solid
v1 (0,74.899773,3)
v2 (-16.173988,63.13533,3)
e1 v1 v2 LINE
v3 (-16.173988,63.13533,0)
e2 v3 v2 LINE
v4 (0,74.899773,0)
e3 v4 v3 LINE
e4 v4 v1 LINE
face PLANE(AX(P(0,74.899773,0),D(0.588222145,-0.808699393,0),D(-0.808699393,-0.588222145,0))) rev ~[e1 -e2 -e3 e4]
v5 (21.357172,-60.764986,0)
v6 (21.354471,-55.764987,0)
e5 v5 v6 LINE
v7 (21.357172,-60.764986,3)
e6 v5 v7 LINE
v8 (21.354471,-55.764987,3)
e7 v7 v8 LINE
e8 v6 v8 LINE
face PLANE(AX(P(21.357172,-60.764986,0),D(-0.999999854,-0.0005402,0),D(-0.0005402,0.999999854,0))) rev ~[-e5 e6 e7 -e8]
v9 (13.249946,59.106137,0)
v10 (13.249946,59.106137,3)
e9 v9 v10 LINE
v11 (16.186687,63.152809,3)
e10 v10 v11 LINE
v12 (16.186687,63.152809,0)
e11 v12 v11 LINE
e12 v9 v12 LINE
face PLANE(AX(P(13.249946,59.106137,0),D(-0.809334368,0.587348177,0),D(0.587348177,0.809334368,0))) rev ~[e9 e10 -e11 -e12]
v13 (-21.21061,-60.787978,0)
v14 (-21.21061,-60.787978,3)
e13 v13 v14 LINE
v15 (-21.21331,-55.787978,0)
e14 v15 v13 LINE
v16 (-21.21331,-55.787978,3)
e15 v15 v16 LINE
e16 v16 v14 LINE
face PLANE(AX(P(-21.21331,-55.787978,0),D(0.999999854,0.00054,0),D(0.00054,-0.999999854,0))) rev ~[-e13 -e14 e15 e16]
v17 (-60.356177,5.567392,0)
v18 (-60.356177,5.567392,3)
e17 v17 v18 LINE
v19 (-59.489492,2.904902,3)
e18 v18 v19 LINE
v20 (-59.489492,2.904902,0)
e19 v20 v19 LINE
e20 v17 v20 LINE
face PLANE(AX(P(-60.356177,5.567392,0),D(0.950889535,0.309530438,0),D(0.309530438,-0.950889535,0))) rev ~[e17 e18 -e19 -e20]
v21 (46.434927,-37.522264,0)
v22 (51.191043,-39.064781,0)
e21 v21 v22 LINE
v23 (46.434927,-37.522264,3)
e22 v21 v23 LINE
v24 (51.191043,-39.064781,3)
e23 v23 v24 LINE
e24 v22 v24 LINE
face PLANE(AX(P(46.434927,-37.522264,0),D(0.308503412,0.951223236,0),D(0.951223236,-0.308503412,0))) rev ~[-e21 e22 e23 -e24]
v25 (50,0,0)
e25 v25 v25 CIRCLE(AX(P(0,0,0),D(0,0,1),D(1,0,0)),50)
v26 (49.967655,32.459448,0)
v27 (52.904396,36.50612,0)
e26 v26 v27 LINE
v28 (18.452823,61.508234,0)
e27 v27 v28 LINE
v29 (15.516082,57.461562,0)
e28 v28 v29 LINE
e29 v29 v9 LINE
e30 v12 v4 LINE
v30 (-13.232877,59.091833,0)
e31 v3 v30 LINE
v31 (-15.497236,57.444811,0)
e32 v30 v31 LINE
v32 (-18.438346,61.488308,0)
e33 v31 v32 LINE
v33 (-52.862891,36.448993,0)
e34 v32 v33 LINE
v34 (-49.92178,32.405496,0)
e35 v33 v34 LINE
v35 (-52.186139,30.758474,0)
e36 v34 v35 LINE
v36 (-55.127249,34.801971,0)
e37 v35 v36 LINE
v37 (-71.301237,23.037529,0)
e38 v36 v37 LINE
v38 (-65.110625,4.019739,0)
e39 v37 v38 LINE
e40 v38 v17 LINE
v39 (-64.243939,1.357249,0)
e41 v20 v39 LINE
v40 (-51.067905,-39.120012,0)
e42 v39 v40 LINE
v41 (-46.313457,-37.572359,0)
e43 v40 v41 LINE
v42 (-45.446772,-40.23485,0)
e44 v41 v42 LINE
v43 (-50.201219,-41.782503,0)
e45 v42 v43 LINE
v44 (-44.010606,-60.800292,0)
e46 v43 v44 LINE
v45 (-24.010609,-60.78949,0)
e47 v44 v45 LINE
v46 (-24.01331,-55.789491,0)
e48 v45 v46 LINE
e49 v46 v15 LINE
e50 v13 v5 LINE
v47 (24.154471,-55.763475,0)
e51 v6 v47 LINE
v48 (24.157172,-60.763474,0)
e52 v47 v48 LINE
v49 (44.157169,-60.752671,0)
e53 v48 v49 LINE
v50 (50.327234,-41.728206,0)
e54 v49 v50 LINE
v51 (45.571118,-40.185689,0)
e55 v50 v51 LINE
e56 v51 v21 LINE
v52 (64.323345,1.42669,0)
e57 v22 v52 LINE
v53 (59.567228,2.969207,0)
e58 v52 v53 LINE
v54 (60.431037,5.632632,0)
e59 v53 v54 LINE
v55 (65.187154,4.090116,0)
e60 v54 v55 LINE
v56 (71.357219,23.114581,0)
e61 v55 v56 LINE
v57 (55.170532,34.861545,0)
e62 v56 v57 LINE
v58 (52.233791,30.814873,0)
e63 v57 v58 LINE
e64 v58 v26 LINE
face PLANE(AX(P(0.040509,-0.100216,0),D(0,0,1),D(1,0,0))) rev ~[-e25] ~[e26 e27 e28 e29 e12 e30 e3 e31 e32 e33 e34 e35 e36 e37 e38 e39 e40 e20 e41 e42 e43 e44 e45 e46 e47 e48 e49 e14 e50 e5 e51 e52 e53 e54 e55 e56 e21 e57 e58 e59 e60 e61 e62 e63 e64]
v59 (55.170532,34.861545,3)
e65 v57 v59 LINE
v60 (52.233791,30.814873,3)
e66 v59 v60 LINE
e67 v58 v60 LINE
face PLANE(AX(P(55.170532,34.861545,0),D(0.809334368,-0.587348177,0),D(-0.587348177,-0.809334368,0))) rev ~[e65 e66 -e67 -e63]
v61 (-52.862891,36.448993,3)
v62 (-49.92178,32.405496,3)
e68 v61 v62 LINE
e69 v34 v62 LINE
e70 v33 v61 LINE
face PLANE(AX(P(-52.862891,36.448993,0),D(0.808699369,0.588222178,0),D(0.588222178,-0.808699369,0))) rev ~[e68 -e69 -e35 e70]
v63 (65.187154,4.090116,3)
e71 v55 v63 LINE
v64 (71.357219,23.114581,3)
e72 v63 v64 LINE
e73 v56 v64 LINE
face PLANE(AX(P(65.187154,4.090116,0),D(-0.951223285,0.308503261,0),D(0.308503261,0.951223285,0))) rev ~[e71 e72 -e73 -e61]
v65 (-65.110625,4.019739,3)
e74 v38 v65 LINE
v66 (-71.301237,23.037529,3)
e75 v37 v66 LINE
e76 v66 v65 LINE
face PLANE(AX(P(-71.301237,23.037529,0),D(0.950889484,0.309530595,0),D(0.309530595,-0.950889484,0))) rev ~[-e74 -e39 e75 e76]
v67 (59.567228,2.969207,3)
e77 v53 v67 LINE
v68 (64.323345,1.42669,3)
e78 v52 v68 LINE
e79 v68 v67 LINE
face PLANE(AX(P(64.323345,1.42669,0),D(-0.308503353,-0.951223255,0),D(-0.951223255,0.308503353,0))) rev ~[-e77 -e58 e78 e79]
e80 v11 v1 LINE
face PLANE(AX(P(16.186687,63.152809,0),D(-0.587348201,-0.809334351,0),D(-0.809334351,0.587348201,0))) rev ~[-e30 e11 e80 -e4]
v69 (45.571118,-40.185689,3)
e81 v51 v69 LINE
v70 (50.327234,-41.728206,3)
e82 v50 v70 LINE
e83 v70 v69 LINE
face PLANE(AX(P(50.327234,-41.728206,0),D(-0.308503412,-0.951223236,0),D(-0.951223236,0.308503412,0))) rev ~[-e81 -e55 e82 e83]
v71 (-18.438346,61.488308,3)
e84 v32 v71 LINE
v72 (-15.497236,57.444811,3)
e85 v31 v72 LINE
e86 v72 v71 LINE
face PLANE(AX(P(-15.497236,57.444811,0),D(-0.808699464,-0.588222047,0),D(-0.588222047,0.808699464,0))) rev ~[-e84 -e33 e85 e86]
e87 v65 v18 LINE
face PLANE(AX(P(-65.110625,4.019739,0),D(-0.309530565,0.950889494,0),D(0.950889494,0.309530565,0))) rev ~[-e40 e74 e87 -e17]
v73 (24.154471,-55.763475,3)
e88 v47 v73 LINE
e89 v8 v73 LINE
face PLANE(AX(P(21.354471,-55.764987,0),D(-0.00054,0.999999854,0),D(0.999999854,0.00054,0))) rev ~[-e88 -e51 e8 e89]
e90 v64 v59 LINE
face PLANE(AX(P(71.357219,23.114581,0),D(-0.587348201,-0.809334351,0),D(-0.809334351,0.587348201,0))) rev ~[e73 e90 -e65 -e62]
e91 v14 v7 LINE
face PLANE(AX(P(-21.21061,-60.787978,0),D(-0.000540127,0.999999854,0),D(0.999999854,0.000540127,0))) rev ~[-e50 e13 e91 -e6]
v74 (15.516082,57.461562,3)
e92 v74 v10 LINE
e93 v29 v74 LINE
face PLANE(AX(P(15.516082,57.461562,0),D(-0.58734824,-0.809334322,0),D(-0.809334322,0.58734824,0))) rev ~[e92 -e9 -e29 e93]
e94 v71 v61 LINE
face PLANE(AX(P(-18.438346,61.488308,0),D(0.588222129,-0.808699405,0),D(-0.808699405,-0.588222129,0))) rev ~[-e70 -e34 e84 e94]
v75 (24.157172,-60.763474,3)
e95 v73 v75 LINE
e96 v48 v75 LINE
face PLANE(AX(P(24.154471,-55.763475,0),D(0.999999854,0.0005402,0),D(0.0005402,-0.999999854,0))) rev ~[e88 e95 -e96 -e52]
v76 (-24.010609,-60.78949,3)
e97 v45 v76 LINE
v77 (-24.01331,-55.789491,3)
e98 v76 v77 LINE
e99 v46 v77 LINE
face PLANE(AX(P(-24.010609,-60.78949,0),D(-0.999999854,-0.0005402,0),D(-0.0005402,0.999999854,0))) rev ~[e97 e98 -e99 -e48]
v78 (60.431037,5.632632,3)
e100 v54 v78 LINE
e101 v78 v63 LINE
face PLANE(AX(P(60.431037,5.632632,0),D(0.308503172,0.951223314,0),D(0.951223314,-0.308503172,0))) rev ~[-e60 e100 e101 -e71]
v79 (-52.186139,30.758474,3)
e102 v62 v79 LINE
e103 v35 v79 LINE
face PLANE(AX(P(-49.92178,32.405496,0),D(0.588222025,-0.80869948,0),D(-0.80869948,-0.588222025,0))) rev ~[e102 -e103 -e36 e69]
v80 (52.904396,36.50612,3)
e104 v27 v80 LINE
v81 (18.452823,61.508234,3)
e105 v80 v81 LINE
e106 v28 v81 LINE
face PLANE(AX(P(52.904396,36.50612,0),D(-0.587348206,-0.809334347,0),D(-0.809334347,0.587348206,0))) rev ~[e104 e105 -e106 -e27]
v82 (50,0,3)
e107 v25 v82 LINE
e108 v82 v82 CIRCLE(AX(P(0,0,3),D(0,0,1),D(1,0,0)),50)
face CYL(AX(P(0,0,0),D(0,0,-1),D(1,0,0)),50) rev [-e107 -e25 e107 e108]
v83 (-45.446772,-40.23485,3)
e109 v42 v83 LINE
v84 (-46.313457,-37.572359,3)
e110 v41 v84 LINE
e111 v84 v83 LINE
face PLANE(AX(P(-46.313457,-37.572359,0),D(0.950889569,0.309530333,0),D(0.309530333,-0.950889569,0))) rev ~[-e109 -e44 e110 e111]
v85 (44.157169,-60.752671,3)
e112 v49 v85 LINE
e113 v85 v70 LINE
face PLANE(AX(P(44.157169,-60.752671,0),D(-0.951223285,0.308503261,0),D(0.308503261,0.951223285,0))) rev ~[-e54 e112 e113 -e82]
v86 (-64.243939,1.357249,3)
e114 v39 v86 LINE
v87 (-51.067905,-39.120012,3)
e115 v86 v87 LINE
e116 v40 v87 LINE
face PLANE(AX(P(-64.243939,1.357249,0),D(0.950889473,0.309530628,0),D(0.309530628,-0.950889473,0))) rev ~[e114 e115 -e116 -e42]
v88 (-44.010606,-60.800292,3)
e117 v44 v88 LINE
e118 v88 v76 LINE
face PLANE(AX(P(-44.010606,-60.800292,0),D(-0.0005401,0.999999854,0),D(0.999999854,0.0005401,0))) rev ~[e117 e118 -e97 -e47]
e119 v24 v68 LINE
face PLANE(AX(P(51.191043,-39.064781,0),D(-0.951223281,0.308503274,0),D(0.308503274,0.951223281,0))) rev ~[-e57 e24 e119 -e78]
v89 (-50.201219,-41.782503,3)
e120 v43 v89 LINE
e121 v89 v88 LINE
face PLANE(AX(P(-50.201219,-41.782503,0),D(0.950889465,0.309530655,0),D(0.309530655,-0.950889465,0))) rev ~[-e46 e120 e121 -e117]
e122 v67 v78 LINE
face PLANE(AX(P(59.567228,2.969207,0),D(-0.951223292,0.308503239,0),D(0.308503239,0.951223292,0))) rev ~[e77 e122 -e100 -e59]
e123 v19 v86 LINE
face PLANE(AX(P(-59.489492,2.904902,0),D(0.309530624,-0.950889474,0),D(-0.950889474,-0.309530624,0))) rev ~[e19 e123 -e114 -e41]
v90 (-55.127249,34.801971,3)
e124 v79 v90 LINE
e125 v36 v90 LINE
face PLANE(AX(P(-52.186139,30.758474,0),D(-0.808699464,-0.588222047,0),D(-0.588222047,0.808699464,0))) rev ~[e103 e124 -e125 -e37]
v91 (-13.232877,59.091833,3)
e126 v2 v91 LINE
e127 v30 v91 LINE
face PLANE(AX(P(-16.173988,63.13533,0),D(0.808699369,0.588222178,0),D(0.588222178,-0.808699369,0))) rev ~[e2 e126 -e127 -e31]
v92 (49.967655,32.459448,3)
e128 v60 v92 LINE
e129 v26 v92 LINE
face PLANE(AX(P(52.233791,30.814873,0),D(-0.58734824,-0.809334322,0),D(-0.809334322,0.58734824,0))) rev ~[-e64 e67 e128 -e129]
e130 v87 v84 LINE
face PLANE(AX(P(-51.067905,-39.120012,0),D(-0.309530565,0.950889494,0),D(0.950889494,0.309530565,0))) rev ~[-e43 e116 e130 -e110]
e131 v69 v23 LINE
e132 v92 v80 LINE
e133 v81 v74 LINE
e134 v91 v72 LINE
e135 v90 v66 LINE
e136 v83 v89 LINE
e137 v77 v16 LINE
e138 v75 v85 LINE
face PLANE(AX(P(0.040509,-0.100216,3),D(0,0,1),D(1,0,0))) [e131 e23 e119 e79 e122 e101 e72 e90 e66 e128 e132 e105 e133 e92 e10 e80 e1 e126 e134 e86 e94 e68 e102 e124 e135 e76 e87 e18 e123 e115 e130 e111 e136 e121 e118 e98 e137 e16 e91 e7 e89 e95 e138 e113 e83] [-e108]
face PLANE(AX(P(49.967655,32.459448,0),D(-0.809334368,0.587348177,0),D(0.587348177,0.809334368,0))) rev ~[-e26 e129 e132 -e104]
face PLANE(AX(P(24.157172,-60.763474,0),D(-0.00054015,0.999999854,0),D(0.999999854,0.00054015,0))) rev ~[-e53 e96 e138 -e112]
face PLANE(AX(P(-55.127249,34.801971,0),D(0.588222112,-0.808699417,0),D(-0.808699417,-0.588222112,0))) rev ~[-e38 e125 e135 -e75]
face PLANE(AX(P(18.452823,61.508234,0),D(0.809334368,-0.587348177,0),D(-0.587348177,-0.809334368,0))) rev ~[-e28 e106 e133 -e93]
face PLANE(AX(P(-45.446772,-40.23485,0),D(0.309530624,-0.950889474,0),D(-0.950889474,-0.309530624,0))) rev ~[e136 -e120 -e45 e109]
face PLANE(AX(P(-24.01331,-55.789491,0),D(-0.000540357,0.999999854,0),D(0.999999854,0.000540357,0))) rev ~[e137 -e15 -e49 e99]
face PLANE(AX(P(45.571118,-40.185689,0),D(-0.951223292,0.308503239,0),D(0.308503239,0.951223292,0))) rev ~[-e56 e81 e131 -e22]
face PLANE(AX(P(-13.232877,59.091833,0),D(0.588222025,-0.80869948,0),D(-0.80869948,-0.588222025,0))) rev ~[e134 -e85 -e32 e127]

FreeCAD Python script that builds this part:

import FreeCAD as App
import Part
import Sketcher
from FreeCAD import Vector


def add_polygon(sketch, points):
    """Adds a closed chain of lines whose ends are joined by coincident constraints."""
    first, n = sketch.GeometryCount, len(points)
    for a, b in zip(points, points[1:] + points[:1]):
        sketch.addGeometry(Part.LineSegment(App.Vector(*a, 0), App.Vector(*b, 0)), False)
    for i in range(n):
        sketch.addConstraint(Sketcher.Constraint("Coincident", first + i, 2, first + (i + 1) % n, 1))

doc = App.newDocument("Part")
body = doc.addObject("PartDesign::Body", "Body")

sketch1 = body.newObject("Sketcher::SketchObject", "Sketch")
sketch1.AttachmentSupport = (doc.getObject("XY_Plane"), [""])
sketch1.MapMode = "FlatFace"
add_polygon(sketch1, [(16.2, 63.2), (0, 74.9), (-16.2, 63.1), (-13.2, 59.1), (-15.5, 57.4), (-18.4, 61.5), (-52.9, 36.4), (-49.9, 32.4), (-52.2, 30.8), (-55.1, 34.8), (-71.3, 23), (-65.1, 4), (-60.4, 5.6), (-59.5, 2.9), (-64.2, 1.4), (-51.1, -39.1), (-46.3, -37.6), (-45.4, -40.2), (-50.2, -41.8), (-44, -60.8), (-24, -60.8), (-24, -55.8), (-21.2, -55.8), (-21.2, -60.8), (21.4, -60.8), (21.4, -55.8), (24.2, -55.8), (24.2, -60.8), (44.2, -60.8), (50.3, -41.7), (45.6, -40.2), (46.4, -37.5), (51.2, -39.1), (64.3, 1.4), (59.6, 3), (60.4, 5.6), (65.2, 4.1), (71.4, 23.1), (55.2, 34.9), (52.2, 30.8), (50, 32.5), (52.9, 36.5), (18.5, 61.5), (15.5, 57.5), (13.2, 59.1)])
sketch1.addGeometry(Part.Circle(Vector(0, 0, 0), Vector(0, 0, 1), 50), False)
sketch1.addConstraint([
    Sketcher.Constraint("Coincident", 45, 3, -1, 1),
    Sketcher.Constraint("PointOnObject", 0, 2, -2),
    Sketcher.Constraint("Perpendicular", 1, 2),
    Sketcher.Constraint("Perpendicular", 2, 3),
    Sketcher.Constraint("Perpendicular", 3, 4),
    Sketcher.Constraint("Perpendicular", 4, 5),
    Sketcher.Constraint("Perpendicular", 5, 6),
    Sketcher.Constraint("Perpendicular", 6, 7),
    Sketcher.Constraint("Perpendicular", 7, 8),
    Sketcher.Constraint("Perpendicular", 8, 9),
    Sketcher.Constraint("Perpendicular", 10, 11),
    Sketcher.Constraint("Perpendicular", 11, 12),
    Sketcher.Constraint("Perpendicular", 12, 13),
    Sketcher.Constraint("Perpendicular", 13, 14),
    Sketcher.Constraint("Perpendicular", 14, 15),
    Sketcher.Constraint("Perpendicular", 15, 16),
    Sketcher.Constraint("Perpendicular", 16, 17),
    Sketcher.Constraint("Perpendicular", 17, 18),
    Sketcher.Constraint("Perpendicular", 19, 20),
    Sketcher.Constraint("Perpendicular", 20, 21),
    Sketcher.Constraint("Perpendicular", 21, 22),
    Sketcher.Constraint("Perpendicular", 22, 23),
    Sketcher.Constraint("Perpendicular", 23, 24),
    Sketcher.Constraint("Perpendicular", 24, 25),
    Sketcher.Constraint("Perpendicular", 25, 26),
    Sketcher.Constraint("Perpendicular", 26, 27),
    Sketcher.Constraint("Perpendicular", 28, 29),
    Sketcher.Constraint("Perpendicular", 29, 30),
    Sketcher.Constraint("Perpendicular", 30, 31),
    Sketcher.Constraint("Perpendicular", 31, 32),
    Sketcher.Constraint("Perpendicular", 32, 33),
    Sketcher.Constraint("Perpendicular", 33, 34),
    Sketcher.Constraint("Perpendicular", 34, 35),
    Sketcher.Constraint("Perpendicular", 35, 36),
    Sketcher.Constraint("Parallel", 0, 37),
    Sketcher.Constraint("Perpendicular", 37, 38),
    Sketcher.Constraint("Perpendicular", 38, 39),
    Sketcher.Constraint("Perpendicular", 39, 40),
    Sketcher.Constraint("Perpendicular", 40, 41),
    Sketcher.Constraint("Perpendicular", 41, 42),
    Sketcher.Constraint("Perpendicular", 42, 43),
    Sketcher.Constraint("Perpendicular", 43, 44),
    Sketcher.Constraint("Equal", 0, 1),
    Sketcher.Constraint("Equal", 2, 4),
    Sketcher.Constraint("Equal", 4, 6),
    Sketcher.Constraint("Equal", 3, 7),
    Sketcher.Constraint("Equal", 6, 8),
    Sketcher.Constraint("Equal", 1, 9),
    Sketcher.Constraint("Equal", 9, 10),
    Sketcher.Constraint("Equal", 8, 11),
    Sketcher.Constraint("Equal", 7, 12),
    Sketcher.Constraint("Equal", 11, 13),
    Sketcher.Constraint("Equal", 5, 14),
    Sketcher.Constraint("Equal", 13, 15),
    Sketcher.Constraint("Equal", 12, 16),
    Sketcher.Constraint("Equal", 15, 17),
    Sketcher.Constraint("Equal", 10, 18),
    Sketcher.Constraint("Equal", 18, 19),
    Sketcher.Constraint("Equal", 17, 20),
    Sketcher.Constraint("Equal", 16, 21),
    Sketcher.Constraint("Equal", 20, 22),
    Sketcher.Constraint("Equal", 14, 23),
    Sketcher.Constraint("Equal", 22, 24),
    Sketcher.Constraint("Equal", 21, 25),
    Sketcher.Constraint("Equal", 24, 26),
    Sketcher.Constraint("Equal", 19, 27),
    Sketcher.Constraint("Equal", 27, 28),
    Sketcher.Constraint("Equal", 26, 29),
    Sketcher.Constraint("Equal", 25, 30),
    Sketcher.Constraint("Equal", 29, 31),
    Sketcher.Constraint("Equal", 23, 32),
    Sketcher.Constraint("Equal", 31, 33),
    Sketcher.Constraint("Equal", 30, 34),
    Sketcher.Constraint("Equal", 33, 35),
    Sketcher.Constraint("Equal", 28, 36),
    Sketcher.Constraint("Equal", 36, 37),
    Sketcher.Constraint("Equal", 35, 38),
    Sketcher.Constraint("Equal", 34, 39),
    Sketcher.Constraint("Equal", 38, 40),
    Sketcher.Constraint("Equal", 32, 41),
    Sketcher.Constraint("Equal", 40, 42),
    Sketcher.Constraint("Equal", 39, 43),
    Sketcher.Constraint("Equal", 42, 44),
    Sketcher.Constraint("Diameter", 45, 100.0),
    Sketcher.Constraint("Distance", 0, 20.0),
    Sketcher.Constraint("Distance", 2, 5.0),
    Sketcher.Constraint("Distance", 3, 2.800001),
    Sketcher.Constraint("DistanceY", -1, 1, 12, 2, 2.904902),
    Sketcher.Constraint("DistanceX", 9, 2, 7, 2, 19.115098),
    Sketcher.Constraint("DistanceX", 9, 2, 13, 2, 7.057298),
    Sketcher.Constraint("DistanceY", 16, 2, 13, 2, 41.592099),
    Sketcher.Constraint("DistanceY", 18, 2, 19, 2, 0.010802),
])
pad1 = body.newObject("PartDesign::Pad", "Pad")
pad1.Profile = sketch1
pad1.Length = 3

doc.recompute()
